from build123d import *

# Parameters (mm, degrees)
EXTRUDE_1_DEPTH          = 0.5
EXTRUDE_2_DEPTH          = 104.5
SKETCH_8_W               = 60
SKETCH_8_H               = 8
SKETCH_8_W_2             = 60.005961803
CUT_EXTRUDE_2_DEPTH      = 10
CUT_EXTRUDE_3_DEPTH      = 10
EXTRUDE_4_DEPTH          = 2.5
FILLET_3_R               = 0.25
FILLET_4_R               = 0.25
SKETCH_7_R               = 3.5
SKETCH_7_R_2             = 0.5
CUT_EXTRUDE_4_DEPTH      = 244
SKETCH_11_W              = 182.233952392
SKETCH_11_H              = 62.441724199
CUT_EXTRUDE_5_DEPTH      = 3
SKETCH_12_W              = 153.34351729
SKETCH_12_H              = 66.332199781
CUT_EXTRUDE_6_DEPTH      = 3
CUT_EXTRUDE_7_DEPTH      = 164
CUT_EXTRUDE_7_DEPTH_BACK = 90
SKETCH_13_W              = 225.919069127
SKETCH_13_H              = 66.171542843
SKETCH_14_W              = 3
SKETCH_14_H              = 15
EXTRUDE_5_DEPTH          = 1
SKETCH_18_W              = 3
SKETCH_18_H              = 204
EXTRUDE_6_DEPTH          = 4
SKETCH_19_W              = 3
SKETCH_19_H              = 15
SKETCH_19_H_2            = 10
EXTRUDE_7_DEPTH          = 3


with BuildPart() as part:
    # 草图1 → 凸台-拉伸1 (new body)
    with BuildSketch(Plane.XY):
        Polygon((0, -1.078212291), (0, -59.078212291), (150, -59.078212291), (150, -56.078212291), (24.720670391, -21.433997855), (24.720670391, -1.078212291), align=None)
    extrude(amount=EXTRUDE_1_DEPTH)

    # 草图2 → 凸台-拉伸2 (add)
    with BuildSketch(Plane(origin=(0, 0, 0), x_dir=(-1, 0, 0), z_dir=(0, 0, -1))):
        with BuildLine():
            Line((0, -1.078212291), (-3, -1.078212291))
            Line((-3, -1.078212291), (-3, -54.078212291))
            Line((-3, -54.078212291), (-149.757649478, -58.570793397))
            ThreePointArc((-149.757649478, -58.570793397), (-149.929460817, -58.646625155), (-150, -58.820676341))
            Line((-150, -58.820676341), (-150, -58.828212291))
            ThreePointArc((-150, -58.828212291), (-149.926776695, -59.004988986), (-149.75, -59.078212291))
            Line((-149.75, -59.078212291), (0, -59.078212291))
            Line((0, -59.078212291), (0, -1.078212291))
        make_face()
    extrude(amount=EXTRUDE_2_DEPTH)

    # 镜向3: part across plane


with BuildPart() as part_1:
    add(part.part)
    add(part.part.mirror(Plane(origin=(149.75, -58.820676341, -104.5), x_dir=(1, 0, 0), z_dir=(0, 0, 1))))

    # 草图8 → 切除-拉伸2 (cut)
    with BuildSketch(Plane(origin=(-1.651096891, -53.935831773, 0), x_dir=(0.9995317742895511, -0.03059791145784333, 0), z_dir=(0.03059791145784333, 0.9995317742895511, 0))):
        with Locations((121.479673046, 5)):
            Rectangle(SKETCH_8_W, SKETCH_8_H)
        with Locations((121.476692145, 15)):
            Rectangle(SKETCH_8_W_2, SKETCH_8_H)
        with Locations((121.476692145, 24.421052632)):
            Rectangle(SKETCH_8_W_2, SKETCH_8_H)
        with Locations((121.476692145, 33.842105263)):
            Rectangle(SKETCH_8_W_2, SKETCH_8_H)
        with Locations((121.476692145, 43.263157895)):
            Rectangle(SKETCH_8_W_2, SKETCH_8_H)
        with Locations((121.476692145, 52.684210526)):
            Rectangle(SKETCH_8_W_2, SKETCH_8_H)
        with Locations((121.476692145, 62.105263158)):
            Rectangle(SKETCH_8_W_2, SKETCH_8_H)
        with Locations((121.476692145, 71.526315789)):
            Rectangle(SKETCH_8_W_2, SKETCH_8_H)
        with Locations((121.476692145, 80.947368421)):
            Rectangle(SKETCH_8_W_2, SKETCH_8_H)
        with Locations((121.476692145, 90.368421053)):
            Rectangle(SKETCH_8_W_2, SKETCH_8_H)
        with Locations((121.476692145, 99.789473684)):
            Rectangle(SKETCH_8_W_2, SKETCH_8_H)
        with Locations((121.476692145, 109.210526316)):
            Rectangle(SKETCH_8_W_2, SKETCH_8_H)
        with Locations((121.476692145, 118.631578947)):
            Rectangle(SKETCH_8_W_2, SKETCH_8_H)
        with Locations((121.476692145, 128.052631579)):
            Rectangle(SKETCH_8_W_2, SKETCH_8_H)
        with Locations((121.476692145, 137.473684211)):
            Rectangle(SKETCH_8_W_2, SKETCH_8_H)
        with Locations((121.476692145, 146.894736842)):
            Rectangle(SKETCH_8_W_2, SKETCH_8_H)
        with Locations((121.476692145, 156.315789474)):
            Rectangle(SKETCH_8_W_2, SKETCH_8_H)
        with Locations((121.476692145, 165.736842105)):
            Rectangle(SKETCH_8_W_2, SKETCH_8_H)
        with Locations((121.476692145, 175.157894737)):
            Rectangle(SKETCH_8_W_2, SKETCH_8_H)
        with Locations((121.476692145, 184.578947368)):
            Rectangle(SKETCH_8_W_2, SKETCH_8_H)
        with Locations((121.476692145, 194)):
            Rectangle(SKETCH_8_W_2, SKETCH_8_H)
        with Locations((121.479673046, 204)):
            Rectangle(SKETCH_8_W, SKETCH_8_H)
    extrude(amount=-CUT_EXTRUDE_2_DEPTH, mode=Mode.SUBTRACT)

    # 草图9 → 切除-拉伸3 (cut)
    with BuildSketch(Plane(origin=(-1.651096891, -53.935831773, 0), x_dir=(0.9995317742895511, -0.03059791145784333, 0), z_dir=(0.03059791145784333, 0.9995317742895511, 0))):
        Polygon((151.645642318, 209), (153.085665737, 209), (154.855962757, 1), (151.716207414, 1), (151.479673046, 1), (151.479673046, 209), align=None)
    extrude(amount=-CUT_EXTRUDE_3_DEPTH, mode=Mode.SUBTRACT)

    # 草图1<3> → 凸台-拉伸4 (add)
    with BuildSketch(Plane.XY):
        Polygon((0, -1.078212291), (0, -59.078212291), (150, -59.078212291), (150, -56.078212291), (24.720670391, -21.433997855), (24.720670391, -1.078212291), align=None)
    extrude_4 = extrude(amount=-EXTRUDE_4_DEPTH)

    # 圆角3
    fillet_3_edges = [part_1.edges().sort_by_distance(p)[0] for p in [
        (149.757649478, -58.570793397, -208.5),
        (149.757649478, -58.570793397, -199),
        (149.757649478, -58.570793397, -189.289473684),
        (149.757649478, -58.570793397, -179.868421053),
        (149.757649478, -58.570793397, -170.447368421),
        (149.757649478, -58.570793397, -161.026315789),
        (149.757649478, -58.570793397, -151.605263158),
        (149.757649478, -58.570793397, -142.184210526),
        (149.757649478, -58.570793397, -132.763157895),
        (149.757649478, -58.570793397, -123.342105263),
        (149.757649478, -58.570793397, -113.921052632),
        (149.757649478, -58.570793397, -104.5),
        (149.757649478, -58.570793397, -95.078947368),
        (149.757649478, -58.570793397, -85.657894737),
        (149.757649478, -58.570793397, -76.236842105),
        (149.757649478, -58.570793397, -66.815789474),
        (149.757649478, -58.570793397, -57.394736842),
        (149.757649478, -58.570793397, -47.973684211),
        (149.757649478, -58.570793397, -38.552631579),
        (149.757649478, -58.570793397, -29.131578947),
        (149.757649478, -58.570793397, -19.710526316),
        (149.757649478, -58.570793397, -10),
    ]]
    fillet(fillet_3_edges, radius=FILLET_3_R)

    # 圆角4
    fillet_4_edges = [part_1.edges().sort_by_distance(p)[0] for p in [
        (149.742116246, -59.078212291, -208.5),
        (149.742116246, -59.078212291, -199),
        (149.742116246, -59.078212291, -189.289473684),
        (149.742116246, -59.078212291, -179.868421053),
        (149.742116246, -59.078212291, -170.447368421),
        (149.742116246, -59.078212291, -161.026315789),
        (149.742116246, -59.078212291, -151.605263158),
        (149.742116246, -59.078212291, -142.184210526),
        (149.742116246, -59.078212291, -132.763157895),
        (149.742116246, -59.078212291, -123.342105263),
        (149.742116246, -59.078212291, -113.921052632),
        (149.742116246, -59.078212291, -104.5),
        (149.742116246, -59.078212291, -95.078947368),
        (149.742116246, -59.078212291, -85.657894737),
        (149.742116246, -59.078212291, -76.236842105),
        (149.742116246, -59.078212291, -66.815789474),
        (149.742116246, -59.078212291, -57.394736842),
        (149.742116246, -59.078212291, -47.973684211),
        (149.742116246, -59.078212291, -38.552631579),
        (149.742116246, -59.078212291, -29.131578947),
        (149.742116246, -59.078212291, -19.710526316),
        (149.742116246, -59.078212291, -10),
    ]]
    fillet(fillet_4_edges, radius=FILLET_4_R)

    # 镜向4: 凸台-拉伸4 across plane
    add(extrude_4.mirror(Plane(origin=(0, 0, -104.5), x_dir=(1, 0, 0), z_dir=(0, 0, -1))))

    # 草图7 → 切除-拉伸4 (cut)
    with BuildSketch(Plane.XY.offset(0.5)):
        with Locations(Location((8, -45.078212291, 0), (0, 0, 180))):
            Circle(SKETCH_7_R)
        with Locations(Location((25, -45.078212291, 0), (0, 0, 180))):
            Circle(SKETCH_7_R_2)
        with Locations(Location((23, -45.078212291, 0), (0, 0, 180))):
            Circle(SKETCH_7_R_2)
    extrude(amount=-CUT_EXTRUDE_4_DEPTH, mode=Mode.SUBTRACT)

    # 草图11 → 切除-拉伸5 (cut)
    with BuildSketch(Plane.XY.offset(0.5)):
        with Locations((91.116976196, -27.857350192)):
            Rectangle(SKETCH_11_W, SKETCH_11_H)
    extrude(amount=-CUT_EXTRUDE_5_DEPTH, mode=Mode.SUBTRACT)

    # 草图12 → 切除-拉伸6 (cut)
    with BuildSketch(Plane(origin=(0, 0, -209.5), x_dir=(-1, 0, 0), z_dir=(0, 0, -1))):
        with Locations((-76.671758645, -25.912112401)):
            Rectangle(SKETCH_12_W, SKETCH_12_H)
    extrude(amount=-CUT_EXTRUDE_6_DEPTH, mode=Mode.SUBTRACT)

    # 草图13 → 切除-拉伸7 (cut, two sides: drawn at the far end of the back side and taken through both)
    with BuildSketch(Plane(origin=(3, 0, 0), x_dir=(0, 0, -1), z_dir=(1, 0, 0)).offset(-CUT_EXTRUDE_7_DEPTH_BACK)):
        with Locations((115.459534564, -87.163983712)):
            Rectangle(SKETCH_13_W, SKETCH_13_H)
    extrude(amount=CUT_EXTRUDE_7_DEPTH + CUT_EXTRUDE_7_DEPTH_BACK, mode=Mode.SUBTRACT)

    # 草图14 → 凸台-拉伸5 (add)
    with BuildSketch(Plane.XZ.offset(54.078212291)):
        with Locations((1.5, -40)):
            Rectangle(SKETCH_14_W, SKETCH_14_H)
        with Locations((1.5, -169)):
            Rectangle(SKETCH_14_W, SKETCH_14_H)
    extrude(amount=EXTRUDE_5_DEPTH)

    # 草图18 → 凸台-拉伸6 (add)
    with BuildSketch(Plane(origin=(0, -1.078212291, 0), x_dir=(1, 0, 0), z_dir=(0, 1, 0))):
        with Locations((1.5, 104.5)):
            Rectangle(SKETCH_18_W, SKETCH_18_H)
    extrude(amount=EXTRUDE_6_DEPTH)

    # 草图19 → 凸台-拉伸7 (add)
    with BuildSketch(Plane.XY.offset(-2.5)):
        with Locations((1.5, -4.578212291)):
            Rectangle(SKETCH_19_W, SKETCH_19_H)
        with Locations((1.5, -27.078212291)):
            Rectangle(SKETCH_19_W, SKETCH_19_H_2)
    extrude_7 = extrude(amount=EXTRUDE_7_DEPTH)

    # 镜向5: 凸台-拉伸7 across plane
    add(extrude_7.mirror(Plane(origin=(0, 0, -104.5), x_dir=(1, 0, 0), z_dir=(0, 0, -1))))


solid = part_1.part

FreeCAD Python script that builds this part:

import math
import FreeCAD as App
import Part
import Sketcher


def edges_at(feature, points):
    """Names of the edges that pass closest to the given points."""
    edges = feature.Shape.Edges
    near = lambda p: min(range(len(edges)), key=lambda i: edges[i].distToShape(Part.Vertex(*p))[0])
    return sorted({f"Edge{near(p) + 1}" for p in points})

doc = App.newDocument("Part")
params = doc.addObject("Spreadsheet::Sheet", "Params")
for row, (alias, value) in enumerate([
    ("sketch1_width", "150 mm"),
    ("sketch1_height", "58 mm"),
    ("sketch1_height2", "3 mm"),
    ("pad1_length", "0.5 mm"),
    ("sketch2_width", "3 mm"),
    ("sketch2_height", "53 mm"),
    ("sketch2_height2", "58 mm"),
    ("sketch2_radius", "0.25 mm"),
    ("pad2_length", "104.5 mm"),
    ("sketch3_width", "60 mm"),
    ("sketch3_height", "8 mm"),
    ("pocket1_length", "10 mm"),
    ("sketch4_height", "208 mm"),
    ("pocket2_length", "10 mm"),
    ("sketch5_width", "150 mm"),
    ("sketch5_height", "58 mm"),
    ("sketch5_height2", "3 mm"),
    ("pad3_length", "2.5 mm"),
    ("fillet_radius", "0.25 mm"),
    ("fillet2_radius", "0.25 mm"),
    ("sketch6_diameter", "7 mm"),
    ("sketch6_diameter2", "1 mm"),
    ("pocket3_length", "244 mm"),
    ("pocket4_length", "3 mm"),
    ("pocket5_length", "3 mm"),
    ("sketch10_width", "3 mm"),
    ("sketch10_height", "15 mm"),
    ("pad4_length", "1 mm"),
    ("sketch11_width", "3 mm"),
    ("sketch11_height", "204 mm"),
    ("pad5_length", "4 mm"),
    ("sketch12_width", "3 mm"),
    ("sketch12_height", "15 mm"),
    ("sketch12_height2", "10 mm"),
    ("pad6_length", "3 mm"),
], start=1):
    params.set(f"A{row}", alias)
    params.set(f"B{row}", "=" + value)
    params.setAlias(f"B{row}", alias)

body = doc.addObject("PartDesign::Body", "Body")

# Sketch on XY plane
sketch1 = body.newObject("Sketcher::SketchObject", "Sketch")
sketch1.AttachmentSupport = (doc.getObject("XY_Plane"), [""])
sketch1.MapMode = "FlatFace"
sketch1.addGeometry([
    Part.LineSegment(App.Vector(0, -1.1, 0), App.Vector(0, -59.1, 0)),  # 0
    Part.LineSegment(App.Vector(0, -59.1, 0), App.Vector(150, -59.1, 0)),  # 1
    Part.LineSegment(App.Vector(150, -59.1, 0), App.Vector(150, -56.1, 0)),  # 2
    Part.LineSegment(App.Vector(150, -56.1, 0), App.Vector(24.7, -21.4, 0)),  # 3
    Part.LineSegment(App.Vector(24.7, -21.4, 0), App.Vector(24.7, -1.1, 0)),  # 4
    Part.LineSegment(App.Vector(24.7, -1.1, 0), App.Vector(0, -1.1, 0)),  # 5
], False)
sketch1.addConstraint([
    Sketcher.Constraint("Coincident", 0, 2, 1, 1),
    Sketcher.Constraint("Coincident", 1, 2, 2, 1),
    Sketcher.Constraint("Coincident", 2, 2, 3, 1),
    Sketcher.Constraint("Coincident", 3, 2, 4, 1),
    Sketcher.Constraint("Coincident", 4, 2, 5, 1),
    Sketcher.Constraint("Coincident", 5, 2, 0, 1),
    Sketcher.Constraint("Vertical", 0),
    Sketcher.Constraint("Horizontal", 1),
    Sketcher.Constraint("Vertical", 2),
    Sketcher.Constraint("Vertical", 4),
    Sketcher.Constraint("Horizontal", 5),
    Sketcher.Constraint("PointOnObject", 0, 2, -2),
    Sketcher.Constraint("DistanceX", 1, 1, 1, 2, 150.0),
    Sketcher.Constraint("DistanceY", 0, 2, 0, 1, 58.0),
    Sketcher.Constraint("DistanceY", 2, 1, 2, 2, 3.0),
    Sketcher.Constraint("DistanceX", 5, 2, 5, 1, 24.72067),
    Sketcher.Constraint("DistanceY", 4, 1, 4, 2, 20.355786),
    Sketcher.Constraint("DistanceY", 0, 2, -1, 1, 59.078212),
])
sketch1.setExpression("Constraints[12]", "Params.sketch1_width")
sketch1.setExpression("Constraints[13]", "Params.sketch1_height")
sketch1.setExpression("Constraints[14]", "Params.sketch1_height2")
pad1 = body.newObject("PartDesign::Pad", "Pad")
pad1.Profile = sketch1
pad1.setExpression("Length", "Params.pad1_length")

# Sketch on XY plane
sketch2 = body.newObject("Sketcher::SketchObject", "Sketch001")
sketch2.AttachmentSupport = (doc.getObject("XY_Plane"), [""])
sketch2.MapMode = "FlatFace"
sketch2.addGeometry([
    Part.LineSegment(App.Vector(0, -1.078, 0), App.Vector(3, -1.078, 0)),  # 0
    Part.LineSegment(App.Vector(3, -1.078, 0), App.Vector(3, -54.078, 0)),  # 1
    Part.LineSegment(App.Vector(3, -54.078, 0), App.Vector(149.758, -58.571, 0)),  # 2
    Part.ArcOfCircle(Part.Circle(App.Vector(149.75, -58.821, 0), App.Vector(0, 0, 1), 0.25), math.radians(0), math.radians(88)),  # 3
    Part.LineSegment(App.Vector(150, -58.821, 0), App.Vector(150, -58.828, 0)),  # 4
    Part.ArcOfCircle(Part.Circle(App.Vector(149.75, -58.828, 0), App.Vector(0, 0, 1), 0.25), math.radians(-90), math.radians(0)),  # 5
    Part.LineSegment(App.Vector(149.75, -59.078, 0), App.Vector(0, -59.078, 0)),  # 6
    Part.LineSegment(App.Vector(0, -59.078, 0), App.Vector(0, -1.078, 0)),  # 7
], False)
sketch2.addConstraint([
    Sketcher.Constraint("Coincident", 0, 2, 1, 1),
    Sketcher.Constraint("Coincident", 1, 2, 2, 1),
    Sketcher.Constraint("Tangent", 2, 2, 3, 2),
    Sketcher.Constraint("Tangent", 3, 1, 4, 1),
    Sketcher.Constraint("Tangent", 4, 2, 5, 2),
    Sketcher.Constraint("Tangent", 5, 1, 6, 1),
    Sketcher.Constraint("Coincident", 6, 2, 7, 1),
    Sketcher.Constraint("Coincident", 7, 2, 0, 1),
    Sketcher.Constraint("Horizontal", 0),
    Sketcher.Constraint("Vertical", 1),
    Sketcher.Constraint("Vertical", 4),
    Sketcher.Constraint("Horizontal", 6),
    Sketcher.Constraint("Vertical", 7),
    Sketcher.Constraint("Equal", 3, 5),
    Sketcher.Constraint("PointOnObject", 6, 2, -2),
    Sketcher.Constraint("DistanceX", 0, 1, 0, 2, 3.0),
    Sketcher.Constraint("DistanceY", 1, 2, 1, 1, 53.0),
    Sketcher.Constraint("DistanceY", 7, 1, 7, 2, 58.0),
    Sketcher.Constraint("Radius", 3, 0.25),
    Sketcher.Constraint("DistanceX", -1, 1, 3, 1, 150.0),
    Sketcher.Constraint("DistanceY", 4, 2, 4, 1, 0.007536),
    Sketcher.Constraint("DistanceY", 3, 3, -1, 1, 58.820676),
])
sketch2.setExpression("Constraints[15]", "Params.sketch2_width")
sketch2.setExpression("Constraints[16]", "Params.sketch2_height")
sketch2.setExpression("Constraints[17]", "Params.sketch2_height2")
sketch2.setExpression("Constraints[18]", "Params.sketch2_radius")
pad2 = body.newObject("PartDesign::Pad", "Pad001")
pad2.Profile = sketch2
pad2.setExpression("Length", "Params.pad2_length")
pad2.Reversed = True
body2 = doc.addObject("PartDesign::Body", "Body001")
doc.recompute()

body2.BaseFeature = body
doc.recompute()

mirroring = doc.addObject("Part::Mirroring", "Mirroring")
mirroring.Source = body
mirroring.Base = App.Vector(149.75, -58.820676, -104.5)
mirroring.Normal = App.Vector(0, 0, 1)
body3 = doc.addObject("PartDesign::Body", "Body002")
body3.BaseFeature = mirroring
boolean = body2.newObject("PartDesign::Boolean", "Boolean")
boolean.Type = "Fuse"
boolean.addObjects([body3])
doc.recompute()

# Sketch on an angled plane
sketch3 = body2.newObject("Sketcher::SketchObject", "Sketch002")
sketch3.Placement = App.Placement(App.Vector(-1.651097, -53.935832, 0), App.Rotation(App.Vector(0.999531774, -0.030597911, 0), App.Vector(0, 0, -0.999999999), App.Vector(0.030597911, 0.999531774, 0), "ZXY"))
sketch3.addGeometry([
    Part.LineSegment(App.Vector(91, 9, 0), App.Vector(91, 1, 0)),  # 0
    Part.LineSegment(App.Vector(91, 1, 0), App.Vector(151, 1, 0)),  # 1
    Part.LineSegment(App.Vector(151, 1, 0), App.Vector(151, 9, 0)),  # 2
    Part.LineSegment(App.Vector(151, 9, 0), App.Vector(91, 9, 0)),  # 3
    Part.LineSegment(App.Vector(91, 19, 0), App.Vector(91, 11, 0)),  # 4
    Part.LineSegment(App.Vector(91, 11, 0), App.Vector(151, 11, 0)),  # 5
    Part.LineSegment(App.Vector(151, 11, 0), App.Vector(151, 19, 0)),  # 6
    Part.LineSegment(App.Vector(151, 19, 0), App.Vector(91, 19, 0)),  # 7
    Part.LineSegment(App.Vector(91, 28, 0), App.Vector(91, 20, 0)),  # 8
    Part.LineSegment(App.Vector(91, 20, 0), App.Vector(151, 20, 0)),  # 9
    Part.LineSegment(App.Vector(151, 20, 0), App.Vector(151, 28, 0)),  # 10
    Part.LineSegment(App.Vector(151, 28, 0), App.Vector(91, 28, 0)),  # 11
    Part.LineSegment(App.Vector(91, 38, 0), App.Vector(91, 30, 0)),  # 12
    Part.LineSegment(App.Vector(91, 30, 0), App.Vector(151, 30, 0)),  # 13
    Part.LineSegment(App.Vector(151, 30, 0), App.Vector(151, 38, 0)),  # 14
    Part.LineSegment(App.Vector(151, 38, 0), App.Vector(91, 38, 0)),  # 15
    Part.LineSegment(App.Vector(91, 47, 0), App.Vector(91, 39, 0)),  # 16
    Part.LineSegment(App.Vector(91, 39, 0), App.Vector(151, 39, 0)),  # 17
    Part.LineSegment(App.Vector(151, 39, 0), App.Vector(151, 47, 0)),  # 18
    Part.LineSegment(App.Vector(151, 47, 0), App.Vector(91, 47, 0)),  # 19
    Part.LineSegment(App.Vector(91, 57, 0), App.Vector(91, 49, 0)),  # 20
    Part.LineSegment(App.Vector(91, 49, 0), App.Vector(151, 49, 0)),  # 21
    Part.LineSegment(App.Vector(151, 49, 0), App.Vector(151, 57, 0)),  # 22
    Part.LineSegment(App.Vector(151, 57, 0), App.Vector(91, 57, 0)),  # 23
    Part.LineSegment(App.Vector(91, 66, 0), App.Vector(91, 58, 0)),  # 24
    Part.LineSegment(App.Vector(91, 58, 0), App.Vector(151, 58, 0)),  # 25
    Part.LineSegment(App.Vector(151, 58, 0), App.Vector(151, 66, 0)),  # 26
    Part.LineSegment(App.Vector(151, 66, 0), App.Vector(91, 66, 0)),  # 27
    Part.LineSegment(App.Vector(91, 76, 0), App.Vector(91, 68, 0)),  # 28
    Part.LineSegment(App.Vector(91, 68, 0), App.Vector(151, 68, 0)),  # 29
    Part.LineSegment(App.Vector(151, 68, 0), App.Vector(151, 76, 0)),  # 30
    Part.LineSegment(App.Vector(151, 76, 0), App.Vector(91, 76, 0)),  # 31
    Part.LineSegment(App.Vector(91, 85, 0), App.Vector(91, 77, 0)),  # 32
    Part.LineSegment(App.Vector(91, 77, 0), App.Vector(151, 77, 0)),  # 33
    Part.LineSegment(App.Vector(151, 77, 0), App.Vector(151, 85, 0)),  # 34
    Part.LineSegment(App.Vector(151, 85, 0), App.Vector(91, 85, 0)),  # 35
    Part.LineSegment(App.Vector(91, 94, 0), App.Vector(91, 86, 0)),  # 36
    Part.LineSegment(App.Vector(91, 86, 0), App.Vector(151, 86, 0)),  # 37
    Part.LineSegment(App.Vector(151, 86, 0), App.Vector(151, 94, 0)),  # 38
    Part.LineSegment(App.Vector(151, 94, 0), App.Vector(91, 94, 0)),  # 39
    Part.LineSegment(App.Vector(91, 104, 0), App.Vector(91, 96, 0)),  # 40
    Part.LineSegment(App.Vector(91, 96, 0), App.Vector(151, 96, 0)),  # 41
    Part.LineSegment(App.Vector(151, 96, 0), App.Vector(151, 104, 0)),  # 42
    Part.LineSegment(App.Vector(151, 104, 0), App.Vector(91, 104, 0)),  # 43
    Part.LineSegment(App.Vector(91, 113, 0), App.Vector(91, 105, 0)),  # 44
    Part.LineSegment(App.Vector(91, 105, 0), App.Vector(151, 105, 0)),  # 45
    Part.LineSegment(App.Vector(151, 105, 0), App.Vector(151, 113, 0)),  # 46
    Part.LineSegment(App.Vector(151, 113, 0), App.Vector(91, 113, 0)),  # 47
    Part.LineSegment(App.Vector(91, 123, 0), App.Vector(91, 115, 0)),  # 48
    Part.LineSegment(App.Vector(91, 115, 0), App.Vector(151, 115, 0)),  # 49
    Part.LineSegment(App.Vector(151, 115, 0), App.Vector(151, 123, 0)),  # 50
    Part.LineSegment(App.Vector(151, 123, 0), App.Vector(91, 123, 0)),  # 51
    Part.LineSegment(App.Vector(91, 132, 0), App.Vector(91, 124, 0)),  # 52
    Part.LineSegment(App.Vector(91, 124, 0), App.Vector(151, 124, 0)),  # 53
    Part.LineSegment(App.Vector(151, 124, 0), App.Vector(151, 132, 0)),  # 54
    Part.LineSegment(App.Vector(151, 132, 0), App.Vector(91, 132, 0)),  # 55
    Part.LineSegment(App.Vector(91, 141, 0), App.Vector(91, 133, 0)),  # 56
    Part.LineSegment(App.Vector(91, 133, 0), App.Vector(151, 133, 0)),  # 57
    Part.LineSegment(App.Vector(151, 133, 0), App.Vector(151, 141, 0)),  # 58
    Part.LineSegment(App.Vector(151, 141, 0), App.Vector(91, 141, 0)),  # 59
    Part.LineSegment(App.Vector(91, 151, 0), App.Vector(91, 143, 0)),  # 60
    Part.LineSegment(App.Vector(91, 143, 0), App.Vector(151, 143, 0)),  # 61
    Part.LineSegment(App.Vector(151, 143, 0), App.Vector(151, 151, 0)),  # 62
    Part.LineSegment(App.Vector(151, 151, 0), App.Vector(91, 151, 0)),  # 63
    Part.LineSegment(App.Vector(91, 160, 0), App.Vector(91, 152, 0)),  # 64
    Part.LineSegment(App.Vector(91, 152, 0), App.Vector(151, 152, 0)),  # 65
    Part.LineSegment(App.Vector(151, 152, 0), App.Vector(151, 160, 0)),  # 66
    Part.LineSegment(App.Vector(151, 160, 0), App.Vector(91, 160, 0)),  # 67
    Part.LineSegment(App.Vector(91, 170, 0), App.Vector(91, 162, 0)),  # 68
    Part.LineSegment(App.Vector(91, 162, 0), App.Vector(151, 162, 0)),  # 69
    Part.LineSegment(App.Vector(151, 162, 0), App.Vector(151, 170, 0)),  # 70
    Part.LineSegment(App.Vector(151, 170, 0), App.Vector(91, 170, 0)),  # 71
    Part.LineSegment(App.Vector(91, 179, 0), App.Vector(91, 171, 0)),  # 72
    Part.LineSegment(App.Vector(91, 171, 0), App.Vector(151, 171, 0)),  # 73
    Part.LineSegment(App.Vector(151, 171, 0), App.Vector(151, 179, 0)),  # 74
    Part.LineSegment(App.Vector(151, 179, 0), App.Vector(91, 179, 0)),  # 75
    Part.LineSegment(App.Vector(91, 189, 0), App.Vector(91, 181, 0)),  # 76
    Part.LineSegment(App.Vector(91, 181, 0), App.Vector(151, 181, 0)),  # 77
    Part.LineSegment(App.Vector(151, 181, 0), App.Vector(151, 189, 0)),  # 78
    Part.LineSegment(App.Vector(151, 189, 0), App.Vector(91, 189, 0)),  # 79
    Part.LineSegment(App.Vector(91, 198, 0), App.Vector(91, 190, 0)),  # 80
    Part.LineSegment(App.Vector(91, 190, 0), App.Vector(151, 190, 0)),  # 81
    Part.LineSegment(App.Vector(151, 190, 0), App.Vector(151, 198, 0)),  # 82
    Part.LineSegment(App.Vector(151, 198, 0), App.Vector(91, 198, 0)),  # 83
    Part.LineSegment(App.Vector(91, 208, 0), App.Vector(91, 200, 0)),  # 84
    Part.LineSegment(App.Vector(91, 200, 0), App.Vector(151, 200, 0)),  # 85
    Part.LineSegment(App.Vector(151, 200, 0), App.Vector(151, 208, 0)),  # 86
    Part.LineSegment(App.Vector(151, 208, 0), App.Vector(91, 208, 0)),  # 87
], False)
sketch3.addConstraint([
    Sketcher.Constraint("Coincident", 0, 2, 1, 1),
    Sketcher.Constraint("Coincident", 1, 2, 2, 1),
    Sketcher.Constraint("Coincident", 2, 2, 3, 1),
    Sketcher.Constraint("Coincident", 3, 2, 0, 1),
    Sketcher.Constraint("Coincident", 4, 2, 5, 1),
    Sketcher.Constraint("Coincident", 5, 2, 6, 1),
    Sketcher.Constraint("Coincident", 6, 2, 7, 1),
    Sketcher.Constraint("Coincident", 7, 2, 4, 1),
    Sketcher.Constraint("Coincident", 8, 2, 9, 1),
    Sketcher.Constraint("Coincident", 9, 2, 10, 1),
    Sketcher.Constraint("Coincident", 10, 2, 11, 1),
    Sketcher.Constraint("Coincident", 11, 2, 8, 1),
    Sketcher.Constraint("Coincident", 12, 2, 13, 1),
    Sketcher.Constraint("Coincident", 13, 2, 14, 1),
    Sketcher.Constraint("Coincident", 14, 2, 15, 1),
    Sketcher.Constraint("Coincident", 15, 2, 12, 1),
    Sketcher.Constraint("Coincident", 16, 2, 17, 1),
    Sketcher.Constraint("Coincident", 17, 2, 18, 1),
    Sketcher.Constraint("Coincident", 18, 2, 19, 1),
    Sketcher.Constraint("Coincident", 19, 2, 16, 1),
    Sketcher.Constraint("Coincident", 20, 2, 21, 1),
    Sketcher.Constraint("Coincident", 21, 2, 22, 1),
    Sketcher.Constraint("Coincident", 22, 2, 23, 1),
    Sketcher.Constraint("Coincident", 23, 2, 20, 1),
    Sketcher.Constraint("Coincident", 24, 2, 25, 1),
    Sketcher.Constraint("Coincident", 25, 2, 26, 1),
    Sketcher.Constraint("Coincident", 26, 2, 27, 1),
    Sketcher.Constraint("Coincident", 27, 2, 24, 1),
    Sketcher.Constraint("Coincident", 28, 2, 29, 1),
    Sketcher.Constraint("Coincident", 29, 2, 30, 1),
    Sketcher.Constraint("Coincident", 30, 2, 31, 1),
    Sketcher.Constraint("Coincident", 31, 2, 28, 1),
    Sketcher.Constraint("Coincident", 32, 2, 33, 1),
    Sketcher.Constraint("Coincident", 33, 2, 34, 1),
    Sketcher.Constraint("Coincident", 34, 2, 35, 1),
    Sketcher.Constraint("Coincident", 35, 2, 32, 1),
    Sketcher.Constraint("Coincident", 36, 2, 37, 1),
    Sketcher.Constraint("Coincident", 37, 2, 38, 1),
    Sketcher.Constraint("Coincident", 38, 2, 39, 1),
    Sketcher.Constraint("Coincident", 39, 2, 36, 1),
    Sketcher.Constraint("Coincident", 40, 2, 41, 1),
    Sketcher.Constraint("Coincident", 41, 2, 42, 1),
    Sketcher.Constraint("Coincident", 42, 2, 43, 1),
    Sketcher.Constraint("Coincident", 43, 2, 40, 1),
    Sketcher.Constraint("Coincident", 44, 2, 45, 1),
    Sketcher.Constraint("Coincident", 45, 2, 46, 1),
    Sketcher.Constraint("Coincident", 46, 2, 47, 1),
    Sketcher.Constraint("Coincident", 47, 2, 44, 1),
    Sketcher.Constraint("Coincident", 48, 2, 49, 1),
    Sketcher.Constraint("Coincident", 49, 2, 50, 1),
    Sketcher.Constraint("Coincident", 50, 2, 51, 1),
    Sketcher.Constraint("Coincident", 51, 2, 48, 1),
    Sketcher.Constraint("Coincident", 52, 2, 53, 1),
    Sketcher.Constraint("Coincident", 53, 2, 54, 1),
    Sketcher.Constraint("Coincident", 54, 2, 55, 1),
    Sketcher.Constraint("Coincident", 55, 2, 52, 1),
    Sketcher.Constraint("Coincident", 56, 2, 57, 1),
    Sketcher.Constraint("Coincident", 57, 2, 58, 1),
    Sketcher.Constraint("Coincident", 58, 2, 59, 1),
    Sketcher.Constraint("Coincident", 59, 2, 56, 1),
    Sketcher.Constraint("Coincident", 60, 2, 61, 1),
    Sketcher.Constraint("Coincident", 61, 2, 62, 1),
    Sketcher.Constraint("Coincident", 62, 2, 63, 1),
    Sketcher.Constraint("Coincident", 63, 2, 60, 1),
    Sketcher.Constraint("Coincident", 64, 2, 65, 1),
    Sketcher.Constraint("Coincident", 65, 2, 66, 1),
    Sketcher.Constraint("Coincident", 66, 2, 67, 1),
    Sketcher.Constraint("Coincident", 67, 2, 64, 1),
    Sketcher.Constraint("Coincident", 68, 2, 69, 1),
    Sketcher.Constraint("Coincident", 69, 2, 70, 1),
    Sketcher.Constraint("Coincident", 70, 2, 71, 1),
    Sketcher.Constraint("Coincident", 71, 2, 68, 1),
    Sketcher.Constraint("Coincident", 72, 2, 73, 1),
    Sketcher.Constraint("Coincident", 73, 2, 74, 1),
    Sketcher.Constraint("Coincident", 74, 2, 75, 1),
    Sketcher.Constraint("Coincident", 75, 2, 72, 1),
    Sketcher.Constraint("Coincident", 76, 2, 77, 1),
    Sketcher.Constraint("Coincident", 77, 2, 78, 1),
    Sketcher.Constraint("Coincident", 78, 2, 79, 1),
    Sketcher.Constraint("Coincident", 79, 2, 76, 1),
    Sketcher.Constraint("Coincident", 80, 2, 81, 1),
    Sketcher.Constraint("Coincident", 81, 2, 82, 1),
    Sketcher.Constraint("Coincident", 82, 2, 83, 1),
    Sketcher.Constraint("Coincident", 83, 2, 80, 1),
    Sketcher.Constraint("Coincident", 84, 2, 85, 1),
    Sketcher.Constraint("Coincident", 85, 2, 86, 1),
    Sketcher.Constraint("Coincident", 86, 2, 87, 1),
    Sketcher.Constraint("Coincident", 87, 2, 84, 1),
    Sketcher.Constraint("Vertical", 0),
    Sketcher.Constraint("Horizontal", 1),
    Sketcher.Constraint("Vertical", 2),
    Sketcher.Constraint("Horizontal", 3),
    Sketcher.Constraint("Vertical", 4),
    Sketcher.Constraint("Horizontal", 5),
    Sketcher.Constraint("Vertical", 6),
    Sketcher.Constraint("Horizontal", 7),
    Sketcher.Constraint("Vertical", 8),
    Sketcher.Constraint("Horizontal", 9),
    Sketcher.Constraint("Vertical", 10),
    Sketcher.Constraint("Horizontal", 11),
    Sketcher.Constraint("Vertical", 12),
    Sketcher.Constraint("Horizontal", 13),
    Sketcher.Constraint("Vertical", 14),
    Sketcher.Constraint("Horizontal", 15),
    Sketcher.Constraint("Vertical", 16),
    Sketcher.Constraint("Horizontal", 17),
    Sketcher.Constraint("Vertical", 18),
    Sketcher.Constraint("Horizontal", 19),
    Sketcher.Constraint("Vertical", 20),
    Sketcher.Constraint("Horizontal", 21),
    Sketcher.Constraint("Vertical", 22),
    Sketcher.Constraint("Horizontal", 23),
    Sketcher.Constraint("Vertical", 24),
    Sketcher.Constraint("Horizontal", 25),
    Sketcher.Constraint("Vertical", 26),
    Sketcher.Constraint("Horizontal", 27),
    Sketcher.Constraint("Vertical", 28),
    Sketcher.Constraint("Horizontal", 29),
    Sketcher.Constraint("Vertical", 30),
    Sketcher.Constraint("Horizontal", 31),
    Sketcher.Constraint("Vertical", 32),
    Sketcher.Constraint("Horizontal", 33),
    Sketcher.Constraint("Vertical", 34),
    Sketcher.Constraint("Horizontal", 35),
    Sketcher.Constraint("Vertical", 36),
    Sketcher.Constraint("Horizontal", 37),
    Sketcher.Constraint("Vertical", 38),
    Sketcher.Constraint("Horizontal", 39),
    Sketcher.Constraint("Vertical", 40),
    Sketcher.Constraint("Horizontal", 41),
    Sketcher.Constraint("Vertical", 42),
    Sketcher.Constraint("Horizontal", 43),
    Sketcher.Constraint("Vertical", 44),
    Sketcher.Constraint("Horizontal", 45),
    Sketcher.Constraint("Vertical", 46),
    Sketcher.Constraint("Horizontal", 47),
    Sketcher.Constraint("Vertical", 48),
    Sketcher.Constraint("Horizontal", 49),
    Sketcher.Constraint("Vertical", 50),
    Sketcher.Constraint("Horizontal", 51),
    Sketcher.Constraint("Vertical", 52),
    Sketcher.Constraint("Horizontal", 53),
    Sketcher.Constraint("Vertical", 54),
    Sketcher.Constraint("Horizontal", 55),
    Sketcher.Constraint("Vertical", 56),
    Sketcher.Constraint("Horizontal", 57),
    Sketcher.Constraint("Vertical", 58),
    Sketcher.Constraint("Horizontal", 59),
    Sketcher.Constraint("Vertical", 60),
    Sketcher.Constraint("Horizontal", 61),
    Sketcher.Constraint("Vertical", 62),
    Sketcher.Constraint("Horizontal", 63),
    Sketcher.Constraint("Vertical", 64),
    Sketcher.Constraint("Horizontal", 65),
    Sketcher.Constraint("Vertical", 66),
    Sketcher.Constraint("Horizontal", 67),
    Sketcher.Constraint("Vertical", 68),
    Sketcher.Constraint("Horizontal", 69),
    Sketcher.Constraint("Vertical", 70),
    Sketcher.Constraint("Horizontal", 71),
    Sketcher.Constraint("Vertical", 72),
    Sketcher.Constraint("Horizontal", 73),
    Sketcher.Constraint("Vertical", 74),
    Sketcher.Constraint("Horizontal", 75),
    Sketcher.Constraint("Vertical", 76),
    Sketcher.Constraint("Horizontal", 77),
    Sketcher.Constraint("Vertical", 78),
    Sketcher.Constraint("Horizontal", 79),
    Sketcher.Constraint("Vertical", 80),
    Sketcher.Constraint("Horizontal", 81),
    Sketcher.Constraint("Vertical", 82),
    Sketcher.Constraint("Horizontal", 83),
    Sketcher.Constraint("Vertical", 84),
    Sketcher.Constraint("Horizontal", 85),
    Sketcher.Constraint("Vertical", 86),
    Sketcher.Constraint("Horizontal", 87),
    Sketcher.Constraint("Vertical", 2, 2, 5, 2),
    Sketcher.Constraint("Vertical", 7, 2, 8, 2),
    Sketcher.Constraint("Vertical", 6, 2, 9, 2),
    Sketcher.Constraint("Vertical", 11, 2, 12, 2),
    Sketcher.Constraint("Vertical", 10, 2, 13, 2),
    Sketcher.Constraint("Vertical", 15, 2, 16, 2),
    Sketcher.Constraint("Vertical", 14, 2, 17, 2),
    Sketcher.Constraint("Vertical", 19, 2, 20, 2),
    Sketcher.Constraint("Vertical", 18, 2, 21, 2),
    Sketcher.Constraint("Vertical", 23, 2, 24, 2),
    Sketcher.Constraint("Vertical", 22, 2, 25, 2),
    Sketcher.Constraint("Vertical", 27, 2, 28, 2),
    Sketcher.Constraint("Vertical", 26, 2, 29, 2),
    Sketcher.Constraint("Vertical", 31, 2, 32, 2),
    Sketcher.Constraint("Vertical", 30, 2, 33, 2),
    Sketcher.Constraint("Vertical", 35, 2, 36, 2),
    Sketcher.Constraint("Vertical", 34, 2, 37, 2),
    Sketcher.Constraint("Vertical", 39, 2, 40, 2),
    Sketcher.Constraint("Vertical", 38, 2, 41, 2),
    Sketcher.Constraint("Vertical", 43, 2, 44, 2),
    Sketcher.Constraint("Vertical", 42, 2, 45, 2),
    Sketcher.Constraint("Vertical", 47, 2, 48, 2),
    Sketcher.Constraint("Vertical", 46, 2, 49, 2),
    Sketcher.Constraint("Vertical", 51, 2, 52, 2),
    Sketcher.Constraint("Vertical", 50, 2, 53, 2),
    Sketcher.Constraint("Vertical", 55, 2, 56, 2),
    Sketcher.Constraint("Vertical", 54, 2, 57, 2),
    Sketcher.Constraint("Vertical", 59, 2, 60, 2),
    Sketcher.Constraint("Vertical", 58, 2, 61, 2),
    Sketcher.Constraint("Vertical", 63, 2, 64, 2),
    Sketcher.Constraint("Vertical", 62, 2, 65, 2),
    Sketcher.Constraint("Vertical", 67, 2, 68, 2),
    Sketcher.Constraint("Vertical", 66, 2, 69, 2),
    Sketcher.Constraint("Vertical", 71, 2, 72, 2),
    Sketcher.Constraint("Vertical", 70, 2, 73, 2),
    Sketcher.Constraint("Vertical", 75, 2, 76, 2),
    Sketcher.Constraint("Vertical", 74, 2, 77, 2),
    Sketcher.Constraint("Vertical", 79, 2, 80, 2),
    Sketcher.Constraint("Vertical", 78, 2, 81, 2),
    Sketcher.Constraint("Vertical", 3, 2, 84, 2),
    Sketcher.Constraint("Vertical", 82, 2, 85, 2),
    Sketcher.Constraint("Equal", 2, 4),
    Sketcher.Constraint("Equal", 6, 8),
    Sketcher.Constraint("Equal", 10, 12),
    Sketcher.Constraint("Equal", 14, 16),
    Sketcher.Constraint("Equal", 18, 20),
    Sketcher.Constraint("Equal", 22, 24),
    Sketcher.Constraint("Equal", 26, 28),
    Sketcher.Constraint("Equal", 30, 32),
    Sketcher.Constraint("Equal", 34, 36),
    Sketcher.Constraint("Equal", 38, 40),
    Sketcher.Constraint("Equal", 42, 44),
    Sketcher.Constraint("Equal", 46, 48),
    Sketcher.Constraint("Equal", 50, 52),
    Sketcher.Constraint("Equal", 54, 56),
    Sketcher.Constraint("Equal", 58, 60),
    Sketcher.Constraint("Equal", 62, 64),
    Sketcher.Constraint("Equal", 66, 68),
    Sketcher.Constraint("Equal", 70, 72),
    Sketcher.Constraint("Equal", 74, 76),
    Sketcher.Constraint("Equal", 78, 80),
    Sketcher.Constraint("Equal", 82, 84),
    Sketcher.Constraint("DistanceX", 1, 1, 1, 2, 60.0),
    Sketcher.Constraint("DistanceY", 0, 2, 0, 1, 8.0),
    Sketcher.Constraint("DistanceY", -1, 1, 0, 2, 1.0),
    Sketcher.Constraint("DistanceY", -1, 1, 4, 2, 11.0),
    Sketcher.Constraint("DistanceY", -1, 1, 80, 2, 190.0),
    Sketcher.Constraint("DistanceY", -1, 1, 84, 2, 200.0),
    Sketcher.Constraint("DistanceX", 5, 1, 5, 2, 60.005962),
    Sketcher.Constraint("DistanceX", -1, 1, 4, 2, 91.473711),
    Sketcher.Constraint("DistanceY", -1, 1, 20, 2, 48.68421),
    Sketcher.Constraint("DistanceY", -1, 1, 32, 2, 76.947368),
    Sketcher.Constraint("DistanceY", -1, 1, 36, 2, 86.368421),
    Sketcher.Constraint("DistanceY", -1, 1, 48, 2, 114.631579),
    Sketcher.Constraint("DistanceY", -1, 1, 52, 2, 124.052631),
    Sketcher.Constraint("DistanceY", -1, 1, 64, 2, 152.315789),
    Sketcher.Constraint("DistanceY", -1, 1, 68, 2, 161.736842),
    Sketcher.Constraint("DistanceY", -1, 1, 8, 2, 20.421053),
    Sketcher.Constraint("DistanceY", -1, 1, 12, 2, 29.842105),
    Sketcher.Constraint("DistanceY", -1, 1, 16, 2, 39.263158),
    Sketcher.Constraint("DistanceY", -1, 1, 24, 2, 58.105263),
    Sketcher.Constraint("DistanceY", -1, 1, 28, 2, 67.526316),
    Sketcher.Constraint("DistanceY", -1, 1, 40, 2, 95.789474),
    Sketcher.Constraint("DistanceY", -1, 1, 44, 2, 105.210526),
    Sketcher.Constraint("DistanceY", -1, 1, 56, 2, 133.473684),
    Sketcher.Constraint("DistanceY", -1, 1, 60, 2, 142.894737),
    Sketcher.Constraint("DistanceY", -1, 1, 72, 2, 171.157895),
    Sketcher.Constraint("DistanceY", -1, 1, 76, 2, 180.578947),
])
sketch3.setExpression("Constraints[238]", "Params.sketch3_width")
sketch3.setExpression("Constraints[239]", "Params.sketch3_height")
pocket1 = body2.newObject("PartDesign::Pocket", "Pocket")
pocket1.Profile = sketch3
pocket1.setExpression("Length", "Params.pocket1_length")

# Sketch on an angled plane
sketch4 = body2.newObject("Sketcher::SketchObject", "Sketch003")
sketch4.Placement = App.Placement(App.Vector(-1.651097, -53.935832, 0), App.Rotation(App.Vector(0.999531774, -0.030597911, 0), App.Vector(0, 0, -0.999999999), App.Vector(0.030597911, 0.999531774, 0), "ZXY"))
sketch4.addGeometry([
    Part.LineSegment(App.Vector(153.1, 209, 0), App.Vector(151.5, 209, 0)),
    Part.LineSegment(App.Vector(151.5, 209, 0), App.Vector(151.5, 1, 0)),
    Part.LineSegment(App.Vector(151.5, 1, 0), App.Vector(154.9, 1, 0)),
    Part.LineSegment(App.Vector(154.9, 1, 0), App.Vector(153.1, 209, 0)),
], False)
sketch4.addConstraint([
    Sketcher.Constraint("Coincident", 0, 2, 1, 1),
    Sketcher.Constraint("Coincident", 1, 2, 2, 1),
    Sketcher.Constraint("Coincident", 2, 2, 3, 1),
    Sketcher.Constraint("Coincident", 3, 2, 0, 1),
    Sketcher.Constraint("Horizontal", 0),
    Sketcher.Constraint("Vertical", 1),
    Sketcher.Constraint("Horizontal", 2),
    Sketcher.Constraint("DistanceY", 1, 2, 1, 1, 208.0),
    Sketcher.Constraint("DistanceY", -1, 1, 0, 2, 209.0),
    Sketcher.Constraint("DistanceX", 2, 1, 2, 2, 3.37629),
    Sketcher.Constraint("DistanceX", 0, 2, 0, 1, 1.605993),
    Sketcher.Constraint("DistanceX", -1, 1, 0, 2, 151.479673),
])
sketch4.setExpression("Constraints[7]", "Params.sketch4_height")
pocket2 = body2.newObject("PartDesign::Pocket", "Pocket001")
pocket2.Profile = sketch4
pocket2.setExpression("Length", "Params.pocket2_length")

# Sketch on XY plane
sketch5 = body2.newObject("Sketcher::SketchObject", "Sketch004")
sketch5.AttachmentSupport = (doc.getObject("XY_Plane001"), [""])
sketch5.MapMode = "FlatFace"
sketch5.addGeometry([
    Part.LineSegment(App.Vector(0, -1.1, 0), App.Vector(0, -59.1, 0)),  # 0
    Part.LineSegment(App.Vector(0, -59.1, 0), App.Vector(150, -59.1, 0)),  # 1
    Part.LineSegment(App.Vector(150, -59.1, 0), App.Vector(150, -56.1, 0)),  # 2
    Part.LineSegment(App.Vector(150, -56.1, 0), App.Vector(24.7, -21.4, 0)),  # 3
    Part.LineSegment(App.Vector(24.7, -21.4, 0), App.Vector(24.7, -1.1, 0)),  # 4
    Part.LineSegment(App.Vector(24.7, -1.1, 0), App.Vector(0, -1.1, 0)),  # 5
], False)
sketch5.addConstraint([
    Sketcher.Constraint("Coincident", 0, 2, 1, 1),
    Sketcher.Constraint("Coincident", 1, 2, 2, 1),
    Sketcher.Constraint("Coincident", 2, 2, 3, 1),
    Sketcher.Constraint("Coincident", 3, 2, 4, 1),
    Sketcher.Constraint("Coincident", 4, 2, 5, 1),
    Sketcher.Constraint("Coincident", 5, 2, 0, 1),
    Sketcher.Constraint("Vertical", 0),
    Sketcher.Constraint("Horizontal", 1),
    Sketcher.Constraint("Vertical", 2),
    Sketcher.Constraint("Vertical", 4),
    Sketcher.Constraint("Horizontal", 5),
    Sketcher.Constraint("PointOnObject", 0, 2, -2),
    Sketcher.Constraint("DistanceX", 1, 1, 1, 2, 150.0),
    Sketcher.Constraint("DistanceY", 0, 2, 0, 1, 58.0),
    Sketcher.Constraint("DistanceY", 2, 1, 2, 2, 3.0),
    Sketcher.Constraint("DistanceX", 5, 2, 5, 1, 24.72067),
    Sketcher.Constraint("DistanceY", 4, 1, 4, 2, 20.355786),
    Sketcher.Constraint("DistanceY", 0, 2, -1, 1, 59.078212),
])
sketch5.setExpression("Constraints[12]", "Params.sketch5_width")
sketch5.setExpression("Constraints[13]", "Params.sketch5_height")
sketch5.setExpression("Constraints[14]", "Params.sketch5_height2")
pad3 = body2.newObject("PartDesign::Pad", "Pad002")
pad3.Profile = sketch5
pad3.setExpression("Length", "Params.pad3_length")
pad3.Reversed = True
doc.recompute()

fillet = body2.newObject("PartDesign::Fillet", "Fillet")
fillet.Base = (pad3, edges_at(pad3, [
    (149.758, -58.571, -208.5),
    (149.758, -58.571, -199),
    (149.758, -58.571, -189.289),
    (149.758, -58.571, -179.868),
    (149.758, -58.571, -170.447),
    (149.758, -58.571, -161.026),
    (149.758, -58.571, -151.605),
    (149.758, -58.571, -142.184),
    (149.758, -58.571, -132.763),
    (149.758, -58.571, -123.342),
    (149.758, -58.571, -113.921),
    (149.758, -58.571, -104.5),
    (149.758, -58.571, -95.079),
    (149.758, -58.571, -85.658),
    (149.758, -58.571, -76.237),
    (149.758, -58.571, -66.816),
    (149.758, -58.571, -57.395),
    (149.758, -58.571, -47.974),
    (149.758, -58.571, -38.553),
    (149.758, -58.571, -29.132),
    (149.758, -58.571, -19.711),
    (149.758, -58.571, -10),
]))
fillet.setExpression("Radius", "Params.fillet_radius")
doc.recompute()

fillet2 = body2.newObject("PartDesign::Fillet", "Fillet001")
fillet2.Base = (fillet, edges_at(fillet, [
    (149.742, -59.078, -208.5),
    (149.742, -59.078, -199),
    (149.742, -59.078, -189.289),
    (149.742, -59.078, -179.868),
    (149.742, -59.078, -170.447),
    (149.742, -59.078, -161.026),
    (149.742, -59.078, -151.605),
    (149.742, -59.078, -142.184),
    (149.742, -59.078, -132.763),
    (149.742, -59.078, -123.342),
    (149.742, -59.078, -113.921),
    (149.742, -59.078, -104.5),
    (149.742, -59.078, -95.079),
    (149.742, -59.078, -85.658),
    (149.742, -59.078, -76.237),
    (149.742, -59.078, -66.816),
    (149.742, -59.078, -57.395),
    (149.742, -59.078, -47.974),
    (149.742, -59.078, -38.553),
    (149.742, -59.078, -29.132),
    (149.742, -59.078, -19.711),
    (149.742, -59.078, -10),
]))
fillet2.setExpression("Radius", "Params.fillet2_radius")
doc.recompute()

datumplane = body2.newObject("PartDesign::Plane", "DatumPlane")
datumplane.AttachmentSupport = (doc.getObject("XY_Plane001"), [""])
datumplane.MapMode = "FlatFace"
datumplane.AttachmentOffset = App.Placement(App.Vector(0, 0, -104.5), App.Rotation())
mirrored = body2.newObject("PartDesign::Mirrored", "Mirrored")
mirrored.Originals = [pad3]
mirrored.MirrorPlane = (datumplane, [""])
body2.Tip = mirrored

# Sketch on XY plane
sketch6 = body2.newObject("Sketcher::SketchObject", "Sketch005")
sketch6.AttachmentSupport = (doc.getObject("XY_Plane001"), [""])
sketch6.MapMode = "FlatFace"
sketch6.AttachmentOffset = App.Placement(App.Vector(0, 0, 0.5), App.Rotation())
sketch6.addGeometry([
    Part.Circle(App.Vector(8, -45.1, 0), App.Vector(0, 0, 1), 3.5),
    Part.Circle(App.Vector(25, -45.1, 0), App.Vector(0, 0, 1), 0.5),
    Part.Circle(App.Vector(23, -45.1, 0), App.Vector(0, 0, 1), 0.5),
], False)
sketch6.addConstraint([
    Sketcher.Constraint("Equal", 1, 2),
    Sketcher.Constraint("Horizontal", 0, 3, 1, 3),
    Sketcher.Constraint("Horizontal", 1, 3, 2, 3),
    Sketcher.Constraint("Diameter", 0, 7.0),
    Sketcher.Constraint("Diameter", 1, 1.0),
    Sketcher.Constraint("DistanceX", -1, 1, 0, 3, 8.0),
    Sketcher.Constraint("DistanceX", -1, 1, 1, 3, 25.0),
    Sketcher.Constraint("DistanceX", -1, 1, 2, 3, 23.0),
    Sketcher.Constraint("DistanceY", 0, 3, -1, 1, 45.078212),
])
sketch6.setExpression("Constraints[3]", "Params.sketch6_diameter")
sketch6.setExpression("Constraints[4]", "Params.sketch6_diameter2")
pocket3 = body2.newObject("PartDesign::Pocket", "Pocket002")
pocket3.Profile = sketch6
pocket3.setExpression("Length", "Params.pocket3_length")

# Sketch on XY plane
sketch7 = body2.newObject("Sketcher::SketchObject", "Sketch006")
sketch7.AttachmentSupport = (doc.getObject("XY_Plane001"), [""])
sketch7.MapMode = "FlatFace"
sketch7.AttachmentOffset = App.Placement(App.Vector(0, 0, 0.5), App.Rotation())
sketch7.addGeometry([
    Part.LineSegment(App.Vector(0, 3, 0), App.Vector(0, -59, 0)),
    Part.LineSegment(App.Vector(0, -59, 0), App.Vector(182, -59, 0)),
    Part.LineSegment(App.Vector(182, -59, 0), App.Vector(182, 3, 0)),
    Part.LineSegment(App.Vector(182, 3, 0), App.Vector(0, 3, 0)),
], False)
sketch7.addConstraint([
    Sketcher.Constraint("Coincident", 0, 2, 1, 1),
    Sketcher.Constraint("Coincident", 1, 2, 2, 1),
    Sketcher.Constraint("Coincident", 2, 2, 3, 1),
    Sketcher.Constraint("Coincident", 3, 2, 0, 1),
    Sketcher.Constraint("Vertical", 0),
    Sketcher.Constraint("Horizontal", 1),
    Sketcher.Constraint("Vertical", 2),
    Sketcher.Constraint("Horizontal", 3),
    Sketcher.Constraint("PointOnObject", 0, 2, -2),
    Sketcher.Constraint("DistanceX", 1, 1, 1, 2, 182.233952),
    Sketcher.Constraint("DistanceY", 0, 2, 0, 1, 62.441724),
    Sketcher.Constraint("DistanceY", -1, 1, 2, 2, 3.363512),
])
pocket4 = body2.newObject("PartDesign::Pocket", "Pocket003")
pocket4.Profile = sketch7
pocket4.setExpression("Length", "Params.pocket4_length")

# Sketch on XY plane
sketch8 = body2.newObject("Sketcher::SketchObject", "Sketch007")
sketch8.AttachmentSupport = (doc.getObject("XY_Plane001"), [""])
sketch8.MapMode = "FlatFace"
sketch8.AttachmentOffset = App.Placement(App.Vector(0, 0, -209.5), App.Rotation())
sketch8.addGeometry([
    Part.LineSegment(App.Vector(153, 7, 0), App.Vector(153, -59, 0)),
    Part.LineSegment(App.Vector(153, -59, 0), App.Vector(0, -59, 0)),
    Part.LineSegment(App.Vector(0, -59, 0), App.Vector(0, 7, 0)),
    Part.LineSegment(App.Vector(0, 7, 0), App.Vector(153, 7, 0)),
], False)
sketch8.addConstraint([
    Sketcher.Constraint("Coincident", 0, 2, 1, 1),
    Sketcher.Constraint("Coincident", 1, 2, 2, 1),
    Sketcher.Constraint("Coincident", 2, 2, 3, 1),
    Sketcher.Constraint("Coincident", 3, 2, 0, 1),
    Sketcher.Constraint("Vertical", 0),
    Sketcher.Constraint("Horizontal", 1),
    Sketcher.Constraint("Vertical", 2),
    Sketcher.Constraint("Horizontal", 3),
    Sketcher.Constraint("PointOnObject", 1, 2, -2),
    Sketcher.Constraint("DistanceY", 0, 2, 0, 1, 66.3322),
    Sketcher.Constraint("DistanceX", 1, 2, 1, 1, 153.343517),
    Sketcher.Constraint("DistanceY", 0, 2, -1, 1, 59.078212),
])
pocket5 = body2.newObject("PartDesign::Pocket", "Pocket004")
pocket5.Profile = sketch8
pocket5.setExpression("Length", "Params.pocket5_length")
pocket5.Reversed = True

# Sketch on YZ plane
sketch9 = body2.newObject("Sketcher::SketchObject", "Sketch008")
sketch9.AttachmentSupport = (doc.getObject("YZ_Plane001"), [""])
sketch9.MapMode = "FlatFace"
sketch9.AttachmentOffset = App.Placement(App.Vector(0, 0, 3), App.Rotation())
sketch9.addGeometry([
    Part.LineSegment(App.Vector(-54, -2, 0), App.Vector(-120, -2, 0)),
    Part.LineSegment(App.Vector(-120, -2, 0), App.Vector(-120, -228, 0)),
    Part.LineSegment(App.Vector(-120, -228, 0), App.Vector(-54, -228, 0)),
    Part.LineSegment(App.Vector(-54, -228, 0), App.Vector(-54, -2, 0)),
], False)
sketch9.addConstraint([
    Sketcher.Constraint("Coincident", 0, 2, 1, 1),
    Sketcher.Constraint("Coincident", 1, 2, 2, 1),
    Sketcher.Constraint("Coincident", 2, 2, 3, 1),
    Sketcher.Constraint("Coincident", 3, 2, 0, 1),
    Sketcher.Constraint("Horizontal", 0),
    Sketcher.Constraint("Vertical", 1),
    Sketcher.Constraint("Horizontal", 2),
    Sketcher.Constraint("Vertical", 3),
    Sketcher.Constraint("DistanceY", 0, 2, -1, 1, 2.5),
    Sketcher.Constraint("DistanceY", 1, 2, 1, 1, 225.919069),
    Sketcher.Constraint("DistanceX", 0, 2, 0, 1, 66.171543),
    Sketcher.Constraint("DistanceX", 0, 2, -1, 1, 120.249755),
])
pocket6 = body2.newObject("PartDesign::Pocket", "Pocket005")
pocket6.Profile = sketch9
pocket6.Type = "ThroughAll"
pocket6.Midplane = True

# Sketch on XZ plane
sketch10 = body2.newObject("Sketcher::SketchObject", "Sketch009")
sketch10.AttachmentSupport = (doc.getObject("XZ_Plane001"), [""])
sketch10.MapMode = "FlatFace"
sketch10.AttachmentOffset = App.Placement(App.Vector(0, 0, 54.078212), App.Rotation())
sketch10.addGeometry([
    Part.LineSegment(App.Vector(0, -32.5, 0), App.Vector(0, -47.5, 0)),  # 0
    Part.LineSegment(App.Vector(0, -47.5, 0), App.Vector(3, -47.5, 0)),  # 1
    Part.LineSegment(App.Vector(3, -47.5, 0), App.Vector(3, -32.5, 0)),  # 2
    Part.LineSegment(App.Vector(3, -32.5, 0), App.Vector(0, -32.5, 0)),  # 3
    Part.LineSegment(App.Vector(0, -161.5, 0), App.Vector(0, -176.5, 0)),  # 4
    Part.LineSegment(App.Vector(0, -176.5, 0), App.Vector(3, -176.5, 0)),  # 5
    Part.LineSegment(App.Vector(3, -176.5, 0), App.Vector(3, -161.5, 0)),  # 6
    Part.LineSegment(App.Vector(3, -161.5, 0), App.Vector(0, -161.5, 0)),  # 7
], False)
sketch10.addConstraint([
    Sketcher.Constraint("Coincident", 0, 2, 1, 1),
    Sketcher.Constraint("Coincident", 1, 2, 2, 1),
    Sketcher.Constraint("Coincident", 2, 2, 3, 1),
    Sketcher.Constraint("Coincident", 3, 2, 0, 1),
    Sketcher.Constraint("Coincident", 4, 2, 5, 1),
    Sketcher.Constraint("Coincident", 5, 2, 6, 1),
    Sketcher.Constraint("Coincident", 6, 2, 7, 1),
    Sketcher.Constraint("Coincident", 7, 2, 4, 1),
    Sketcher.Constraint("Vertical", 0),
    Sketcher.Constraint("Horizontal", 1),
    Sketcher.Constraint("Vertical", 2),
    Sketcher.Constraint("Horizontal", 3),
    Sketcher.Constraint("Vertical", 4),
    Sketcher.Constraint("Horizontal", 5),
    Sketcher.Constraint("Vertical", 6),
    Sketcher.Constraint("Horizontal", 7),
    Sketcher.Constraint("PointOnObject", 0, 2, -2),
    Sketcher.Constraint("PointOnObject", 4, 2, -2),
    Sketcher.Constraint("Vertical", 2, 2, 5, 2),
    Sketcher.Constraint("Equal", 2, 4),
    Sketcher.Constraint("DistanceX", 1, 1, 1, 2, 3.0),
    Sketcher.Constraint("DistanceY", 0, 2, 0, 1, 15.0),
    Sketcher.Constraint("DistanceY", 4, 2, 0, 2, 129.0),
    Sketcher.Constraint("DistanceY", 0, 2, -1, 1, 47.5),
])
sketch10.setExpression("Constraints[20]", "Params.sketch10_width")
sketch10.setExpression("Constraints[21]", "Params.sketch10_height")
pad4 = body2.newObject("PartDesign::Pad", "Pad003")
pad4.Profile = sketch10
pad4.setExpression("Length", "Params.pad4_length")

# Sketch on XZ plane
sketch11 = body2.newObject("Sketcher::SketchObject", "Sketch010")
sketch11.AttachmentSupport = (doc.getObject("XZ_Plane001"), [""])
sketch11.MapMode = "FlatFace"
sketch11.AttachmentOffset = App.Placement(App.Vector(0, 0, 1.078212), App.Rotation())
sketch11.addGeometry([
    Part.LineSegment(App.Vector(0, -206.5, 0), App.Vector(0, -2.5, 0)),
    Part.LineSegment(App.Vector(0, -2.5, 0), App.Vector(3, -2.5, 0)),
    Part.LineSegment(App.Vector(3, -2.5, 0), App.Vector(3, -206.5, 0)),
    Part.LineSegment(App.Vector(3, -206.5, 0), App.Vector(0, -206.5, 0)),
], False)
sketch11.addConstraint([
    Sketcher.Constraint("Coincident", 0, 2, 1, 1),
    Sketcher.Constraint("Coincident", 1, 2, 2, 1),
    Sketcher.Constraint("Coincident", 2, 2, 3, 1),
    Sketcher.Constraint("Coincident", 3, 2, 0, 1),
    Sketcher.Constraint("Vertical", 0),
    Sketcher.Constraint("Horizontal", 1),
    Sketcher.Constraint("Vertical", 2),
    Sketcher.Constraint("Horizontal", 3),
    Sketcher.Constraint("PointOnObject", 0, 2, -2),
    Sketcher.Constraint("DistanceX", 1, 1, 1, 2, 3.0),
    Sketcher.Constraint("DistanceY", 0, 1, 0, 2, 204.0),
    Sketcher.Constraint("DistanceY", 0, 2, -1, 1, 2.5),
])
sketch11.setExpression("Constraints[9]", "Params.sketch11_width")
sketch11.setExpression("Constraints[10]", "Params.sketch11_height")
pad5 = body2.newObject("PartDesign::Pad", "Pad004")
pad5.Profile = sketch11
pad5.setExpression("Length", "Params.pad5_length")
pad5.Reversed = True

# Sketch on XY plane
sketch12 = body2.newObject("Sketcher::SketchObject", "Sketch011")
sketch12.AttachmentSupport = (doc.getObject("XY_Plane001"), [""])
sketch12.MapMode = "FlatFace"
sketch12.AttachmentOffset = App.Placement(App.Vector(0, 0, -2.5), App.Rotation())
sketch12.addGeometry([
    Part.LineSegment(App.Vector(0, 2.9, 0), App.Vector(0, -12.1, 0)),  # 0
    Part.LineSegment(App.Vector(0, -12.1, 0), App.Vector(3, -12.1, 0)),  # 1
    Part.LineSegment(App.Vector(3, -12.1, 0), App.Vector(3, 2.9, 0)),  # 2
    Part.LineSegment(App.Vector(3, 2.9, 0), App.Vector(0, 2.9, 0)),  # 3
    Part.LineSegment(App.Vector(0, -22.1, 0), App.Vector(0, -32.1, 0)),  # 4
    Part.LineSegment(App.Vector(0, -32.1, 0), App.Vector(3, -32.1, 0)),  # 5
    Part.LineSegment(App.Vector(3, -32.1, 0), App.Vector(3, -22.1, 0)),  # 6
    Part.LineSegment(App.Vector(3, -22.1, 0), App.Vector(0, -22.1, 0)),  # 7
], False)
sketch12.addConstraint([
    Sketcher.Constraint("Coincident", 0, 2, 1, 1),
    Sketcher.Constraint("Coincident", 1, 2, 2, 1),
    Sketcher.Constraint("Coincident", 2, 2, 3, 1),
    Sketcher.Constraint("Coincident", 3, 2, 0, 1),
    Sketcher.Constraint("Coincident", 4, 2, 5, 1),
    Sketcher.Constraint("Coincident", 5, 2, 6, 1),
    Sketcher.Constraint("Coincident", 6, 2, 7, 1),
    Sketcher.Constraint("Coincident", 7, 2, 4, 1),
    Sketcher.Constraint("Vertical", 0),
    Sketcher.Constraint("Horizontal", 1),
    Sketcher.Constraint("Vertical", 2),
    Sketcher.Constraint("Horizontal", 3),
    Sketcher.Constraint("Vertical", 4),
    Sketcher.Constraint("Horizontal", 5),
    Sketcher.Constraint("Vertical", 6),
    Sketcher.Constraint("Horizontal", 7),
    Sketcher.Constraint("PointOnObject", 0, 2, -2),
    Sketcher.Constraint("PointOnObject", 4, 2, -2),
    Sketcher.Constraint("Vertical", 2, 2, 5, 2),
    Sketcher.Constraint("DistanceX", 1, 1, 1, 2, 3.0),
    Sketcher.Constraint("DistanceY", 0, 2, 0, 1, 15.0),
    Sketcher.Constraint("DistanceY", 4, 2, 4, 1, 10.0),
    Sketcher.Constraint("DistanceY", 4, 2, 0, 2, 20.0),
    Sketcher.Constraint("DistanceY", 0, 2, -1, 1, 12.078212),
])
sketch12.setExpression("Constraints[19]", "Params.sketch12_width")
sketch12.setExpression("Constraints[20]", "Params.sketch12_height")
sketch12.setExpression("Constraints[21]", "Params.sketch12_height2")
pad6 = body2.newObject("PartDesign::Pad", "Pad005")
pad6.Profile = sketch12
pad6.setExpression("Length", "Params.pad6_length")
doc.recompute()

datumplane2 = body2.newObject("PartDesign::Plane", "DatumPlane001")
datumplane2.AttachmentSupport = (doc.getObject("XY_Plane001"), [""])
datumplane2.MapMode = "FlatFace"
datumplane2.AttachmentOffset = App.Placement(App.Vector(0, 0, -104.5), App.Rotation())
mirrored2 = body2.newObject("PartDesign::Mirrored", "Mirrored001")
mirrored2.Originals = [pad6]
mirrored2.MirrorPlane = (datumplane2, [""])
body2.Tip = mirrored2
mirroring.Visibility = False

doc.recompute()
